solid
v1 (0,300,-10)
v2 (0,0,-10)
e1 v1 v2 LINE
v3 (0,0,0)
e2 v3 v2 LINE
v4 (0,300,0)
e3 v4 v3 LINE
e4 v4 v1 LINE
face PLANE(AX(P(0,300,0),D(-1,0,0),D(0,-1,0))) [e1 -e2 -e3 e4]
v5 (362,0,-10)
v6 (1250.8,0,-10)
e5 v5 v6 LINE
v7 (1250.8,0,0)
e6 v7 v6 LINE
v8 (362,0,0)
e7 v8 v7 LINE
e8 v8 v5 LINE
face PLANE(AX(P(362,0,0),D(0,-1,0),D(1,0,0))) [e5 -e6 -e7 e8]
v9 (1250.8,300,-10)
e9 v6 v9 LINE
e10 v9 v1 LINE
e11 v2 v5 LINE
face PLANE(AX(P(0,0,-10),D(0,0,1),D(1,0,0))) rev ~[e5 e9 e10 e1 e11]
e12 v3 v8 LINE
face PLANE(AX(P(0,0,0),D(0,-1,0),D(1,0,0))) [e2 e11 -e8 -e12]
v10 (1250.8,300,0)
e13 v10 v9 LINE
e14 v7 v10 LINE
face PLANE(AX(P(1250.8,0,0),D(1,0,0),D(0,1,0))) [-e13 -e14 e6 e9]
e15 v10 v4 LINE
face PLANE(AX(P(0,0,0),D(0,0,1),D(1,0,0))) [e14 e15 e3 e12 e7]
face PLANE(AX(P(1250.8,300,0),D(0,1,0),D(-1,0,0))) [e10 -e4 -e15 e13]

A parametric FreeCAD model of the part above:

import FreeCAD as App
import Part
import Sketcher
from FreeCAD import Vector
Q = App.Units.Quantity


def add_polygon(sketch, points):
    """Adds a closed chain of lines whose ends are joined by coincident constraints."""
    first, n = sketch.GeometryCount, len(points)
    for a, b in zip(points, points[1:] + points[:1]):
        sketch.addGeometry(Part.LineSegment(App.Vector(*a, 0), App.Vector(*b, 0)), False)
    for i in range(n):
        sketch.addConstraint(Sketcher.Constraint("Coincident", first + i, 2, first + (i + 1) % n, 1))

doc = App.newDocument("Part")
body = doc.addObject("PartDesign::Body", "Body")

# Sketch on XY plane
sketch1 = body.newObject("Sketcher::SketchObject", "Sketch")
sketch1.AttachmentSupport = (doc.getObject("XY_Plane"), [""])
sketch1.MapMode = "FlatFace"
add_polygon(sketch1, [(0, 0), (1251, 0), (1251, 300), (0, 300)])  # lines 0-3
sketch1.addConstraint(Sketcher.Constraint("Horizontal", 0))
sketch1.addConstraint(Sketcher.Constraint("Vertical", 1))
sketch1.addConstraint(Sketcher.Constraint("Horizontal", 2))
sketch1.addConstraint(Sketcher.Constraint("Vertical", 3))
sketch1.addConstraint(Sketcher.Constraint("Coincident", 3, 2, -1, 1))
sketch1.addConstraint(Sketcher.Constraint("DistanceY", 1, 1, 1, 2, Q("300 mm")))
sketch1.addConstraint(Sketcher.Constraint("DistanceX", 0, 1, 0, 2, Q("1250.8 mm")))
pad1 = body.newObject("PartDesign::Pad", "Pad")
pad1.Profile = sketch1
pad1.Length = 10
pad1.Reversed = True

doc.recompute()
